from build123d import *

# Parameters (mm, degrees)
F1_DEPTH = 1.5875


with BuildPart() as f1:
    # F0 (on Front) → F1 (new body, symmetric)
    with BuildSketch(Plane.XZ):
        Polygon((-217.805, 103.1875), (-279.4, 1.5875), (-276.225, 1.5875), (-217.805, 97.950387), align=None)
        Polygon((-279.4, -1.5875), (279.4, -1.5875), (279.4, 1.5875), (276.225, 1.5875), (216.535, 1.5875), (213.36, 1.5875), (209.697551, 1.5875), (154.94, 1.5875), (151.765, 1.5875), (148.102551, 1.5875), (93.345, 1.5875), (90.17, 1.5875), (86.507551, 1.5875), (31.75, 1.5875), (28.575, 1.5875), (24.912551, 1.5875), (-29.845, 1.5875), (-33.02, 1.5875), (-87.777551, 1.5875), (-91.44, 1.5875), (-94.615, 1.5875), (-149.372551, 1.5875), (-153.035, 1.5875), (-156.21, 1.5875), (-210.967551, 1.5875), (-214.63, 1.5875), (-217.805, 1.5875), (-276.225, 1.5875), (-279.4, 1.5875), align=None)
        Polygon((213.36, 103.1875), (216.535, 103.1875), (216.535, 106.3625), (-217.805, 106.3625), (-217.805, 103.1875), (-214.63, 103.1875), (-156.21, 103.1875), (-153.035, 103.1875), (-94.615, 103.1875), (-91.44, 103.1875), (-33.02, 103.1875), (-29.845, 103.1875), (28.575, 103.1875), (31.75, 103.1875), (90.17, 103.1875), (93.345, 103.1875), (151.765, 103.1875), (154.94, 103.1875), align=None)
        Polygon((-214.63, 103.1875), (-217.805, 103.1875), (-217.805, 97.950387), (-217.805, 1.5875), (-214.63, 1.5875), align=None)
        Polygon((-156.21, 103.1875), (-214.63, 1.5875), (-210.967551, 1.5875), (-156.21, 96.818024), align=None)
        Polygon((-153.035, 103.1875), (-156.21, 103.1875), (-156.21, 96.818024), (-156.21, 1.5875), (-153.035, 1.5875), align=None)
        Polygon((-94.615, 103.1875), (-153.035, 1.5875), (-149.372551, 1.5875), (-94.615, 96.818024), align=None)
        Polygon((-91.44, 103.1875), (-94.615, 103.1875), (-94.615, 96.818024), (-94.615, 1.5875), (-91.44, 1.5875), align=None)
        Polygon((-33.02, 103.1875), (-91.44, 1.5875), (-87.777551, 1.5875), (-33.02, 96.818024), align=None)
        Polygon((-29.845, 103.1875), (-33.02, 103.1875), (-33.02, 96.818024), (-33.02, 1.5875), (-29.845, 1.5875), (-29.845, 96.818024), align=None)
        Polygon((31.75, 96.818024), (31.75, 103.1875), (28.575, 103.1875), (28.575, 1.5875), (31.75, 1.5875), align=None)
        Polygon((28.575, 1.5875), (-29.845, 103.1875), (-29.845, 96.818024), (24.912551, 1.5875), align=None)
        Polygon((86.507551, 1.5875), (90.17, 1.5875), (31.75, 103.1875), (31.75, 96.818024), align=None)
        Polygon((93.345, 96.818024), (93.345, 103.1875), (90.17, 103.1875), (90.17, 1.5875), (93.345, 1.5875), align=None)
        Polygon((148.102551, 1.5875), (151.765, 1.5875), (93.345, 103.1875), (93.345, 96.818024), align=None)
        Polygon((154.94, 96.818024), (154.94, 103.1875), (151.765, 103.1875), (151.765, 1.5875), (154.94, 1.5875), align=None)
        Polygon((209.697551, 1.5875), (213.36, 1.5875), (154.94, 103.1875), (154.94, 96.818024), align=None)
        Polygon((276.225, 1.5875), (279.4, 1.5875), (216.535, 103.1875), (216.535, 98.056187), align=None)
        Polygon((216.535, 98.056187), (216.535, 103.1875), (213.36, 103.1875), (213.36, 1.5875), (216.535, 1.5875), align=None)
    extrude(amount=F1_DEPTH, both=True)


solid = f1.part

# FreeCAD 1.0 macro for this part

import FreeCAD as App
import Part
import Sketcher

V = App.Vector
Q = App.Units.Quantity


def add_polygon(sketch, points):
    """Adds a closed chain of lines whose ends are joined by coincident constraints."""
    first, n = sketch.GeometryCount, len(points)
    for a, b in zip(points, points[1:] + points[:1]):
        sketch.addGeometry(Part.LineSegment(App.Vector(*a, 0), App.Vector(*b, 0)), False)
    for i in range(n):
        sketch.addConstraint(Sketcher.Constraint("Coincident", first + i, 2, first + (i + 1) % n, 1))

doc = App.newDocument("Part")
params = doc.addObject("Spreadsheet::Sheet", "Params")
for row, (alias, value) in enumerate([
    ("sketch1_width", "22 in"),
    ("sketch1_height", "4 in"),
    ("sketch1_width2", "17.1 in"),
    ("sketch1_width3", "2.3 in"),
    ("sketch1_width4", "2.35 in"),
    ("pad1_length", "0.125 in"),
], start=1):
    params.set(f"A{row}", alias)
    params.set(f"B{row}", "=" + value)
    params.setAlias(f"B{row}", alias)

body = doc.addObject("PartDesign::Body", "Body")

# Sketch on XZ plane
sketch1 = body.newObject("Sketcher::SketchObject", "Sketch")
sketch1.AttachmentSupport = (doc.getObject("XZ_Plane"), [""])
sketch1.MapMode = "FlatFace"
add_polygon(sketch1, [(279.4, 1.6), (216.5, 103.2), (216.5, 106.4), (-217.8, 106.4), (-217.8, 103.2), (-279.4, 1.6), (-279.4, -1.6), (279.4, -1.6)])  # lines 0-7
add_polygon(sketch1, [(-217.8, 1.6), (-276.2, 1.6), (-217.8, 98)])  # lines 8-10
add_polygon(sketch1, [(-211, 1.6), (-156.2, 96.8), (-156.2, 1.6)])  # lines 11-13
add_polygon(sketch1, [(-214.6, 103.2), (-156.2, 103.2), (-214.6, 1.6)])  # lines 14-16
add_polygon(sketch1, [(-149.4, 1.6), (-94.6, 96.8), (-94.6, 1.6)])  # lines 17-19
add_polygon(sketch1, [(-153, 103.2), (-94.6, 103.2), (-153, 1.6)])  # lines 20-22
add_polygon(sketch1, [(-87.8, 1.6), (-33, 96.8), (-33, 1.6)])  # lines 23-25
add_polygon(sketch1, [(-91.4, 103.2), (-33, 103.2), (-91.4, 1.6)])  # lines 26-28
add_polygon(sketch1, [(24.9, 1.6), (-29.8, 1.6), (-29.8, 96.8)])  # lines 29-31
add_polygon(sketch1, [(86.5, 1.6), (31.8, 1.6), (31.8, 96.8)])  # lines 32-34
add_polygon(sketch1, [(148.1, 1.6), (93.3, 1.6), (93.3, 96.8)])  # lines 35-37
add_polygon(sketch1, [(209.7, 1.6), (154.9, 1.6), (154.9, 96.8)])  # lines 38-40
add_polygon(sketch1, [(154.9, 103.2), (213.4, 103.2), (213.4, 1.6)])  # lines 41-43
add_polygon(sketch1, [(276.2, 1.6), (216.5, 1.6), (216.5, 98.1)])  # lines 44-46
add_polygon(sketch1, [(-29.8, 103.2), (28.6, 103.2), (28.6, 1.6)])  # lines 47-49
add_polygon(sketch1, [(90.2, 1.6), (31.8, 103.2), (90.2, 103.2)])  # lines 50-52
add_polygon(sketch1, [(151.8, 1.6), (93.3, 103.2), (151.8, 103.2)])  # lines 53-55
sketch1.addConstraint(Sketcher.Constraint("Vertical", 1))
sketch1.addConstraint(Sketcher.Constraint("Horizontal", 2))
sketch1.addConstraint(Sketcher.Constraint("Vertical", 3))
sketch1.addConstraint(Sketcher.Constraint("Vertical", 5))
sketch1.addConstraint(Sketcher.Constraint("Horizontal", 6))
sketch1.addConstraint(Sketcher.Constraint("Vertical", 7))
sketch1.addConstraint(Sketcher.Constraint("Horizontal", 8))
sketch1.addConstraint(Sketcher.Constraint("Vertical", 10))
sketch1.addConstraint(Sketcher.Constraint("Vertical", 12))
sketch1.addConstraint(Sketcher.Constraint("Horizontal", 13))
sketch1.addConstraint(Sketcher.Constraint("Horizontal", 14))
sketch1.addConstraint(Sketcher.Constraint("Vertical", 16))
sketch1.addConstraint(Sketcher.Constraint("Vertical", 18))
sketch1.addConstraint(Sketcher.Constraint("Horizontal", 19))
sketch1.addConstraint(Sketcher.Constraint("Horizontal", 20))
sketch1.addConstraint(Sketcher.Constraint("Vertical", 22))
sketch1.addConstraint(Sketcher.Constraint("Vertical", 24))
sketch1.addConstraint(Sketcher.Constraint("Horizontal", 25))
sketch1.addConstraint(Sketcher.Constraint("Horizontal", 26))
sketch1.addConstraint(Sketcher.Constraint("Vertical", 28))
sketch1.addConstraint(Sketcher.Constraint("Horizontal", 29))
sketch1.addConstraint(Sketcher.Constraint("Vertical", 30))
sketch1.addConstraint(Sketcher.Constraint("Horizontal", 32))
sketch1.addConstraint(Sketcher.Constraint("Vertical", 33))
sketch1.addConstraint(Sketcher.Constraint("Horizontal", 35))
sketch1.addConstraint(Sketcher.Constraint("Vertical", 36))
sketch1.addConstraint(Sketcher.Constraint("Horizontal", 38))
sketch1.addConstraint(Sketcher.Constraint("Vertical", 39))
sketch1.addConstraint(Sketcher.Constraint("Horizontal", 41))
sketch1.addConstraint(Sketcher.Constraint("Vertical", 42))
sketch1.addConstraint(Sketcher.Constraint("Horizontal", 44))
sketch1.addConstraint(Sketcher.Constraint("Vertical", 45))
sketch1.addConstraint(Sketcher.Constraint("Horizontal", 47))
sketch1.addConstraint(Sketcher.Constraint("Vertical", 48))
sketch1.addConstraint(Sketcher.Constraint("Horizontal", 51))
sketch1.addConstraint(Sketcher.Constraint("Vertical", 52))
sketch1.addConstraint(Sketcher.Constraint("Horizontal", 54))
sketch1.addConstraint(Sketcher.Constraint("Vertical", 55))
sketch1.addConstraint(Sketcher.Constraint("Symmetric", 4, 2, 6, 2, -1, 1))
sketch1.addConstraint(Sketcher.Constraint("Symmetric", 8, 2, 46, 2, -2))
sketch1.addConstraint(Sketcher.Constraint("Parallel", 4, 9))
sketch1.addConstraint(Sketcher.Constraint("Parallel", 11, 15))
sketch1.addConstraint(Sketcher.Constraint("Parallel", 15, 17))
sketch1.addConstraint(Sketcher.Constraint("Parallel", 17, 21))
sketch1.addConstraint(Sketcher.Constraint("Parallel", 21, 23))
sketch1.addConstraint(Sketcher.Constraint("Parallel", 23, 27))
sketch1.addConstraint(Sketcher.Constraint("Parallel", 31, 34))
sketch1.addConstraint(Sketcher.Constraint("Parallel", 34, 37))
sketch1.addConstraint(Sketcher.Constraint("Parallel", 37, 40))
sketch1.addConstraint(Sketcher.Constraint("Parallel", 40, 43))
sketch1.addConstraint(Sketcher.Constraint("Parallel", 0, 46))
sketch1.addConstraint(Sketcher.Constraint("Parallel", 43, 49))
sketch1.addConstraint(Sketcher.Constraint("Parallel", 49, 50))
sketch1.addConstraint(Sketcher.Constraint("Parallel", 50, 53))
sketch1.addConstraint(Sketcher.Constraint("Horizontal", 0, 2, 3, 2))
sketch1.addConstraint(Sketcher.Constraint("Horizontal", 4, 2, 7, 2))
sketch1.addConstraint(Sketcher.Constraint("Horizontal", 7, 2, 8, 2))
sketch1.addConstraint(Sketcher.Constraint("Horizontal", 10, 2, 12, 2))
sketch1.addConstraint(Sketcher.Constraint("Horizontal", 3, 2, 14, 2))
sketch1.addConstraint(Sketcher.Constraint("Horizontal", 13, 2, 15, 2))
sketch1.addConstraint(Sketcher.Constraint("Horizontal", 11, 2, 17, 2))
sketch1.addConstraint(Sketcher.Constraint("Horizontal", 15, 2, 18, 2))
sketch1.addConstraint(Sketcher.Constraint("Horizontal", 16, 2, 20, 2))
sketch1.addConstraint(Sketcher.Constraint("Horizontal", 19, 2, 21, 2))
sketch1.addConstraint(Sketcher.Constraint("Horizontal", 17, 2, 23, 2))
sketch1.addConstraint(Sketcher.Constraint("Horizontal", 21, 2, 24, 2))
sketch1.addConstraint(Sketcher.Constraint("Horizontal", 22, 2, 26, 2))
sketch1.addConstraint(Sketcher.Constraint("Horizontal", 25, 2, 27, 2))
sketch1.addConstraint(Sketcher.Constraint("Horizontal", 27, 2, 29, 2))
sketch1.addConstraint(Sketcher.Constraint("Horizontal", 23, 2, 30, 2))
sketch1.addConstraint(Sketcher.Constraint("Horizontal", 31, 2, 32, 2))
sketch1.addConstraint(Sketcher.Constraint("Horizontal", 30, 2, 33, 2))
sketch1.addConstraint(Sketcher.Constraint("Horizontal", 34, 2, 35, 2))
sketch1.addConstraint(Sketcher.Constraint("Horizontal", 33, 2, 36, 2))
sketch1.addConstraint(Sketcher.Constraint("Horizontal", 37, 2, 38, 2))
sketch1.addConstraint(Sketcher.Constraint("Horizontal", 36, 2, 39, 2))
sketch1.addConstraint(Sketcher.Constraint("Horizontal", 28, 2, 41, 2))
sketch1.addConstraint(Sketcher.Constraint("Horizontal", 40, 2, 42, 2))
sketch1.addConstraint(Sketcher.Constraint("Horizontal", 43, 2, 47, 2))
sketch1.addConstraint(Sketcher.Constraint("Horizontal", 46, 2, 48, 2))
sketch1.addConstraint(Sketcher.Constraint("Horizontal", 49, 2, 50, 2))
sketch1.addConstraint(Sketcher.Constraint("Horizontal", 48, 2, 52, 2))
sketch1.addConstraint(Sketcher.Constraint("Horizontal", 51, 2, 53, 2))
sketch1.addConstraint(Sketcher.Constraint("Horizontal", 52, 2, 55, 2))
sketch1.addConstraint(Sketcher.Constraint("Vertical", 3, 2, 9, 2))
sketch1.addConstraint(Sketcher.Constraint("Vertical", 12, 2, 14, 2))
sketch1.addConstraint(Sketcher.Constraint("Vertical", 18, 2, 20, 2))
sketch1.addConstraint(Sketcher.Constraint("Vertical", 24, 2, 26, 2))
sketch1.addConstraint(Sketcher.Constraint("Vertical", 39, 2, 43, 2))
sketch1.addConstraint(Sketcher.Constraint("Vertical", 1, 2, 44, 2))
sketch1.addConstraint(Sketcher.Constraint("Vertical", 30, 2, 49, 2))
sketch1.addConstraint(Sketcher.Constraint("Vertical", 33, 2, 50, 2))
sketch1.addConstraint(Sketcher.Constraint("Vertical", 36, 2, 53, 2))
sketch1.addConstraint(Sketcher.Constraint("Equal", 8, 14))
sketch1.addConstraint(Sketcher.Constraint("Equal", 25, 29))
sketch1.addConstraint(Sketcher.Constraint("Equal", 3, 5))
sketch1.addConstraint(Sketcher.Constraint("DistanceX", 6, 1, 6, 2, Q("22 in")))
sketch1.addConstraint(Sketcher.Constraint("DistanceY", 16, 1, 16, 2, Q("4 in")))
sketch1.addConstraint(Sketcher.Constraint("DistanceX", 2, 2, 2, 1, Q("17.1 in")))
sketch1.addConstraint(Sketcher.Constraint("DistanceX", 8, 2, 8, 1, Q("2.3 in")))
sketch1.addConstraint(Sketcher.Constraint("DistanceX", 44, 2, 44, 1, Q("2.35 in")))
sketch1.addConstraint(Sketcher.Constraint("DistanceX", 23, 2, -1, 1, Q("1.3 in")))
sketch1.addConstraint(Sketcher.Constraint("DistanceX", -1, 1, 38, 2, Q("6.1 in")))
sketch1.addConstraint(Sketcher.Constraint("DistanceY", 1, 1, 1, 2, Q("0.125 in")))
sketch1.addConstraint(Sketcher.Constraint("DistanceX", 11, 2, -1, 1, Q("6.15 in")))
sketch1.addConstraint(Sketcher.Constraint("DistanceX", -1, 1, 32, 2, Q("1.25 in")))
sketch1.addConstraint(Sketcher.Constraint("DistanceX", 9, 2, 17, 2, Q("4.85 in")))
sketch1.addConstraint(Sketcher.Constraint("DistanceX", 18, 2, 29, 2, Q("2.55 in")))
sketch1.addConstraint(Sketcher.Constraint("DistanceX", 29, 2, 35, 2, Q("4.85 in")))
sketch1.addConstraint(Sketcher.Constraint("Distance", 11, Q("109.851 mm")))
sketch1.setExpression("Constraints[152]", "Params.sketch1_width")
sketch1.setExpression("Constraints[153]", "Params.sketch1_height")
sketch1.setExpression("Constraints[154]", "Params.sketch1_width2")
sketch1.setExpression("Constraints[155]", "Params.sketch1_width3")
sketch1.setExpression("Constraints[156]", "Params.sketch1_width4")
pad1 = body.newObject("PartDesign::Pad", "Pad")
pad1.Profile = sketch1
pad1.setExpression("Length", "Params.pad1_length")
pad1.Midplane = True

doc.recompute()
